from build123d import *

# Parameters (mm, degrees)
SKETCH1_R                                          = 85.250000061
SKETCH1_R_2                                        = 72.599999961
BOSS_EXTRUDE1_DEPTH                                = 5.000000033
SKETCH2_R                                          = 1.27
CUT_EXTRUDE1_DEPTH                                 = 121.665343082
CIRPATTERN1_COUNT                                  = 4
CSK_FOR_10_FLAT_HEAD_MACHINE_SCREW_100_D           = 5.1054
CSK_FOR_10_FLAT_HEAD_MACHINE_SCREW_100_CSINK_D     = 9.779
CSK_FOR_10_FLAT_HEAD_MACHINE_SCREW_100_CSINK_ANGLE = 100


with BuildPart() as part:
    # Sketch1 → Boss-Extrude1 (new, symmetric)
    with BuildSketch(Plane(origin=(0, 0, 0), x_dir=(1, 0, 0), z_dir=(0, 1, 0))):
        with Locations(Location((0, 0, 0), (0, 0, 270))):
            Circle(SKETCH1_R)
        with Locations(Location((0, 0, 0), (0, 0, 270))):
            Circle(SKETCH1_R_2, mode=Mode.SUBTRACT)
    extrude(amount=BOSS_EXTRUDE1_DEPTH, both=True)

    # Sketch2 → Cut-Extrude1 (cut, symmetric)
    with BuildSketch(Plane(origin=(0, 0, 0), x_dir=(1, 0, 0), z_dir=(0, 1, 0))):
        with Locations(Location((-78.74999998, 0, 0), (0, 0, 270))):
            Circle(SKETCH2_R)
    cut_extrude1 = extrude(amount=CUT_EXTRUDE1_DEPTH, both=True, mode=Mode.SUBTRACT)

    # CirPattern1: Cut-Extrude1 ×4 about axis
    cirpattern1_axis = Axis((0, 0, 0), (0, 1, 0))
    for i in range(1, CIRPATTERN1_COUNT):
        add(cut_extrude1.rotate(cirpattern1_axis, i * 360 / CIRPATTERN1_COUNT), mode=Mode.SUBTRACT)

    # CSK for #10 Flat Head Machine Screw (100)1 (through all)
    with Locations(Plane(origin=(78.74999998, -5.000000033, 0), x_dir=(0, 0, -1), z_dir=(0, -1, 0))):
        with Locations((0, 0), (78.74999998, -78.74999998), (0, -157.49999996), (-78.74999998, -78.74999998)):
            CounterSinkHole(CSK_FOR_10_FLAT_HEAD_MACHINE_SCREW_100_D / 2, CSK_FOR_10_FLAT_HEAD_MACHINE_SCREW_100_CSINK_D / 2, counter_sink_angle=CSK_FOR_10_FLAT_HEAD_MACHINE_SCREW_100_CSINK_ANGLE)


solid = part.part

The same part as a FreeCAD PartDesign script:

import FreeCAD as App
import Part
import Sketcher

doc = App.newDocument("Part")
params = doc.addObject("Spreadsheet::Sheet", "Params")
for row, (alias, value) in enumerate([
    ("sketch1_diameter", "170.5 mm"),
    ("sketch1_diameter2", "145.2 mm"),
    ("pad1_length", "10 mm"),
    ("sketch2_diameter", "2.54 mm"),
    ("pocket1_length", "243.330686 mm"),
    ("hole_diameter", "5.1054 mm"),
    ("hole_csink_diameter", "9.779 mm"),
], start=1):
    params.set(f"A{row}", alias)
    params.set(f"B{row}", "=" + value)
    params.setAlias(f"B{row}", alias)

body = doc.addObject("PartDesign::Body", "Body")

sketch1 = body.newObject("Sketcher::SketchObject", "Sketch")
sketch1.AttachmentSupport = (doc.getObject("XZ_Plane"), [""])
sketch1.MapMode = "FlatFace"
sketch1.addGeometry([
    Part.Circle(App.Vector(0, 0, 0), App.Vector(0, 0, 1), 85.25),
    Part.Circle(App.Vector(0, 0, 0), App.Vector(0, 0, 1), 72.6),
], False)
sketch1.addConstraint([
    Sketcher.Constraint("Coincident", 0, 3, -1, 1),
    Sketcher.Constraint("Coincident", 1, 3, -1, 1),
    Sketcher.Constraint("Diameter", 0, 170.5),
    Sketcher.Constraint("Diameter", 1, 145.2),
])
sketch1.setExpression("Constraints[2]", "Params.sketch1_diameter")
sketch1.setExpression("Constraints[3]", "Params.sketch1_diameter2")
pad1 = body.newObject("PartDesign::Pad", "Pad")
pad1.Profile = sketch1
pad1.setExpression("Length", "Params.pad1_length")
pad1.Midplane = True

sketch2 = body.newObject("Sketcher::SketchObject", "Sketch001")
sketch2.AttachmentSupport = (doc.getObject("XZ_Plane"), [""])
sketch2.MapMode = "FlatFace"
sketch2.addGeometry(Part.Circle(App.Vector(-78.75, 0, 0), App.Vector(0, 0, 1), 1.27), False)
sketch2.addConstraint([
    Sketcher.Constraint("PointOnObject", 0, 3, -1),
    Sketcher.Constraint("Diameter", 0, 2.54),
    Sketcher.Constraint("DistanceX", 0, 3, -1, 1, 78.75),
])
sketch2.setExpression("Constraints[1]", "Params.sketch2_diameter")
pocket1 = body.newObject("PartDesign::Pocket", "Pocket")
pocket1.Profile = sketch2
pocket1.setExpression("Length", "Params.pocket1_length")
pocket1.Midplane = True
doc.recompute()

polarpattern = body.newObject("PartDesign::PolarPattern", "PolarPattern")
polarpattern.Originals = [pocket1]
polarpattern.Axis = (doc.getObject("Y_Axis"), [""])
polarpattern.Angle = 360
polarpattern.Occurrences = 4
body.Tip = polarpattern

sketch3 = body.newObject("Sketcher::SketchObject", "Sketch002")
sketch3.AttachmentSupport = (doc.getObject("XZ_Plane"), [""])
sketch3.MapMode = "FlatFace"
sketch3.AttachmentOffset = App.Placement(App.Vector(0, 0, 5), App.Rotation())
sketch3.addGeometry([
    Part.Circle(App.Vector(78.75, 0, 0), App.Vector(0, 0, 1), 2.5527),
    Part.Circle(App.Vector(0, -78.75, 0), App.Vector(0, 0, 1), 2.5527),
    Part.Circle(App.Vector(-78.75, 0, 0), App.Vector(0, 0, 1), 2.5527),
    Part.Circle(App.Vector(0, 78.75, 0), App.Vector(0, 0, 1), 2.5527),
], False)
sketch3.addConstraint([
    Sketcher.Constraint("Equal", 0, 1),
    Sketcher.Constraint("Equal", 1, 2),
    Sketcher.Constraint("Equal", 2, 3),
    Sketcher.Constraint("Symmetric", 0, 3, 2, 3, -1, 1),
    Sketcher.Constraint("Symmetric", 1, 3, 3, 3, -1, 1),
    Sketcher.Constraint("PointOnObject", 0, 3, -1),
    Sketcher.Constraint("PointOnObject", 1, 3, -2),
    Sketcher.Constraint("Diameter", 0, 5.1054),
    Sketcher.Constraint("DistanceX", 2, 3, 0, 3, 157.5),
    Sketcher.Constraint("DistanceY", 1, 3, 3, 3, 157.5),
])
doc.recompute()
hole = body.newObject("PartDesign::Hole", "Hole")
hole.Profile = sketch3
hole.ThreadType = "None"
hole.setExpression("Diameter", "Params.hole_diameter")
hole.DepthType = "ThroughAll"
hole.HoleCutType = "Countersink"
hole.setExpression("HoleCutDiameter", "Params.hole_csink_diameter")
hole.HoleCutCountersinkAngle = 100

doc.recompute()
